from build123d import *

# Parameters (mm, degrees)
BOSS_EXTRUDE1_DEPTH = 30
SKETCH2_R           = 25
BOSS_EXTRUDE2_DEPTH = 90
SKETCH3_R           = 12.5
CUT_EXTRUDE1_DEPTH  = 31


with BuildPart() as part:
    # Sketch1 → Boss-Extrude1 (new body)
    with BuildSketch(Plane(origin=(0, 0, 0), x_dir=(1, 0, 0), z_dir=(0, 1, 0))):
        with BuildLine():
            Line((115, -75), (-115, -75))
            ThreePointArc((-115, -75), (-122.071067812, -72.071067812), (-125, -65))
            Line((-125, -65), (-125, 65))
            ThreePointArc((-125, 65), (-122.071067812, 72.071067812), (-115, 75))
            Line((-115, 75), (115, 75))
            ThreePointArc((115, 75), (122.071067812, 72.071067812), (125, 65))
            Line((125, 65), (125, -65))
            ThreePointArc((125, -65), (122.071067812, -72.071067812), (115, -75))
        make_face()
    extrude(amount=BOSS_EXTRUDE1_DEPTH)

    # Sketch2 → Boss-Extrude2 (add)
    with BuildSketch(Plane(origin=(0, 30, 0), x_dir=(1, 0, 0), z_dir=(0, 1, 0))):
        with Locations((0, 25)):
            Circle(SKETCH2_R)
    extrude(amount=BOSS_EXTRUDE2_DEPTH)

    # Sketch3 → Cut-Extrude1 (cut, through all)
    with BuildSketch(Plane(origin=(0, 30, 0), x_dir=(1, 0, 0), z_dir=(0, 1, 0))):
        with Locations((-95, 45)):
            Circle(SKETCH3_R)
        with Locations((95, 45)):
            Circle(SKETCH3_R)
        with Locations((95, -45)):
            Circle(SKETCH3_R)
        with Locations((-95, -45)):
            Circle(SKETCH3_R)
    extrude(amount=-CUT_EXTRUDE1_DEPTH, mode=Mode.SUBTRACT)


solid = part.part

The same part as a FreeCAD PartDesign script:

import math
import FreeCAD as App
import Part
import Sketcher

doc = App.newDocument("Part")
params = doc.addObject("Spreadsheet::Sheet", "Params")
for row, (alias, value) in enumerate([
    ("sketch1_radius", "10 mm"),
    ("sketch1_width", "230 mm"),
    ("sketch1_height", "130 mm"),
    ("pad1_length", "30 mm"),
    ("sketch2_diameter", "50 mm"),
    ("pad2_length", "90 mm"),
    ("sketch3_diameter", "25 mm"),
], start=1):
    params.set(f"A{row}", alias)
    params.set(f"B{row}", "=" + value)
    params.setAlias(f"B{row}", alias)

body = doc.addObject("PartDesign::Body", "Body")

# Sketch on XZ plane
sketch1 = body.newObject("Sketcher::SketchObject", "Sketch")
sketch1.AttachmentSupport = (doc.getObject("XZ_Plane"), [""])
sketch1.MapMode = "FlatFace"
sketch1.addGeometry([
    Part.LineSegment(App.Vector(-115, 75, 0), App.Vector(115, 75, 0)),  # 0
    Part.ArcOfCircle(Part.Circle(App.Vector(115, 65, 0), App.Vector(0, 0, 1), 10), math.radians(0), math.radians(90)),  # 1
    Part.LineSegment(App.Vector(125, 65, 0), App.Vector(125, -65, 0)),  # 2
    Part.ArcOfCircle(Part.Circle(App.Vector(115, -65, 0), App.Vector(0, 0, 1), 10), math.radians(-90), math.radians(0)),  # 3
    Part.LineSegment(App.Vector(115, -75, 0), App.Vector(-115, -75, 0)),  # 4
    Part.ArcOfCircle(Part.Circle(App.Vector(-115, -65, 0), App.Vector(0, 0, 1), 10), math.radians(180), math.radians(270)),  # 5
    Part.LineSegment(App.Vector(-125, -65, 0), App.Vector(-125, 65, 0)),  # 6
    Part.ArcOfCircle(Part.Circle(App.Vector(-115, 65, 0), App.Vector(0, 0, 1), 10), math.radians(90), math.radians(180)),  # 7
], False)
sketch1.addConstraint([
    Sketcher.Constraint("Tangent", 0, 2, 1, 2),
    Sketcher.Constraint("Tangent", 1, 1, 2, 1),
    Sketcher.Constraint("Tangent", 2, 2, 3, 2),
    Sketcher.Constraint("Tangent", 3, 1, 4, 1),
    Sketcher.Constraint("Tangent", 4, 2, 5, 2),
    Sketcher.Constraint("Tangent", 5, 1, 6, 1),
    Sketcher.Constraint("Tangent", 6, 2, 7, 2),
    Sketcher.Constraint("Tangent", 7, 1, 0, 1),
    Sketcher.Constraint("Horizontal", 0),
    Sketcher.Constraint("Vertical", 2),
    Sketcher.Constraint("Horizontal", 4),
    Sketcher.Constraint("Vertical", 6),
    Sketcher.Constraint("Equal", 1, 3),
    Sketcher.Constraint("Equal", 3, 5),
    Sketcher.Constraint("Equal", 5, 7),
    Sketcher.Constraint("Symmetric", 1, 3, 5, 3, -1, 1),
    Sketcher.Constraint("Radius", 1, 10.0),
    Sketcher.Constraint("DistanceX", 0, 1, 0, 2, 230.0),
    Sketcher.Constraint("DistanceY", 2, 2, 2, 1, 130.0),
])
sketch1.setExpression("Constraints[16]", "Params.sketch1_radius")
sketch1.setExpression("Constraints[17]", "Params.sketch1_width")
sketch1.setExpression("Constraints[18]", "Params.sketch1_height")
pad1 = body.newObject("PartDesign::Pad", "Pad")
pad1.Profile = sketch1
pad1.setExpression("Length", "Params.pad1_length")
pad1.Reversed = True

# Sketch on XZ plane
sketch2 = body.newObject("Sketcher::SketchObject", "Sketch001")
sketch2.AttachmentSupport = (doc.getObject("XZ_Plane"), [""])
sketch2.MapMode = "FlatFace"
sketch2.AttachmentOffset = App.Placement(App.Vector(0, 0, -30), App.Rotation())
sketch2.addGeometry(Part.Circle(App.Vector(0, -25, 0), App.Vector(0, 0, 1), 25), False)
sketch2.addConstraint([
    Sketcher.Constraint("PointOnObject", 0, 3, -2),
    Sketcher.Constraint("Diameter", 0, 50.0),
    Sketcher.Constraint("DistanceY", 0, 3, -1, 1, 25.0),
])
sketch2.setExpression("Constraints[1]", "Params.sketch2_diameter")
pad2 = body.newObject("PartDesign::Pad", "Pad001")
pad2.Profile = sketch2
pad2.setExpression("Length", "Params.pad2_length")
pad2.Reversed = True

# Sketch on XZ plane
sketch3 = body.newObject("Sketcher::SketchObject", "Sketch002")
sketch3.AttachmentSupport = (doc.getObject("XZ_Plane"), [""])
sketch3.MapMode = "FlatFace"
sketch3.AttachmentOffset = App.Placement(App.Vector(0, 0, -30), App.Rotation())
sketch3.addGeometry([
    Part.Circle(App.Vector(-95, -45, 0), App.Vector(0, 0, 1), 12),
    Part.Circle(App.Vector(95, -45, 0), App.Vector(0, 0, 1), 12),
    Part.Circle(App.Vector(95, 45, 0), App.Vector(0, 0, 1), 12),
    Part.Circle(App.Vector(-95, 45, 0), App.Vector(0, 0, 1), 12),
], False)
sketch3.addConstraint([
    Sketcher.Constraint("Equal", 0, 1),
    Sketcher.Constraint("Equal", 1, 2),
    Sketcher.Constraint("Equal", 2, 3),
    Sketcher.Constraint("Symmetric", 0, 3, 2, 3, -1, 1),
    Sketcher.Constraint("Symmetric", 1, 3, 3, 3, -1, 1),
    Sketcher.Constraint("Symmetric", 0, 3, 1, 3, -2),
    Sketcher.Constraint("Diameter", 0, 25.0),
    Sketcher.Constraint("DistanceX", 0, 3, -1, 1, 95.0),
    Sketcher.Constraint("DistanceY", 0, 3, -1, 1, 45.0),
])
sketch3.setExpression("Constraints[6]", "Params.sketch3_diameter")
pocket1 = body.newObject("PartDesign::Pocket", "Pocket")
pocket1.Profile = sketch3
pocket1.Type = "ThroughAll"
pocket1.Reversed = True

doc.recompute()
